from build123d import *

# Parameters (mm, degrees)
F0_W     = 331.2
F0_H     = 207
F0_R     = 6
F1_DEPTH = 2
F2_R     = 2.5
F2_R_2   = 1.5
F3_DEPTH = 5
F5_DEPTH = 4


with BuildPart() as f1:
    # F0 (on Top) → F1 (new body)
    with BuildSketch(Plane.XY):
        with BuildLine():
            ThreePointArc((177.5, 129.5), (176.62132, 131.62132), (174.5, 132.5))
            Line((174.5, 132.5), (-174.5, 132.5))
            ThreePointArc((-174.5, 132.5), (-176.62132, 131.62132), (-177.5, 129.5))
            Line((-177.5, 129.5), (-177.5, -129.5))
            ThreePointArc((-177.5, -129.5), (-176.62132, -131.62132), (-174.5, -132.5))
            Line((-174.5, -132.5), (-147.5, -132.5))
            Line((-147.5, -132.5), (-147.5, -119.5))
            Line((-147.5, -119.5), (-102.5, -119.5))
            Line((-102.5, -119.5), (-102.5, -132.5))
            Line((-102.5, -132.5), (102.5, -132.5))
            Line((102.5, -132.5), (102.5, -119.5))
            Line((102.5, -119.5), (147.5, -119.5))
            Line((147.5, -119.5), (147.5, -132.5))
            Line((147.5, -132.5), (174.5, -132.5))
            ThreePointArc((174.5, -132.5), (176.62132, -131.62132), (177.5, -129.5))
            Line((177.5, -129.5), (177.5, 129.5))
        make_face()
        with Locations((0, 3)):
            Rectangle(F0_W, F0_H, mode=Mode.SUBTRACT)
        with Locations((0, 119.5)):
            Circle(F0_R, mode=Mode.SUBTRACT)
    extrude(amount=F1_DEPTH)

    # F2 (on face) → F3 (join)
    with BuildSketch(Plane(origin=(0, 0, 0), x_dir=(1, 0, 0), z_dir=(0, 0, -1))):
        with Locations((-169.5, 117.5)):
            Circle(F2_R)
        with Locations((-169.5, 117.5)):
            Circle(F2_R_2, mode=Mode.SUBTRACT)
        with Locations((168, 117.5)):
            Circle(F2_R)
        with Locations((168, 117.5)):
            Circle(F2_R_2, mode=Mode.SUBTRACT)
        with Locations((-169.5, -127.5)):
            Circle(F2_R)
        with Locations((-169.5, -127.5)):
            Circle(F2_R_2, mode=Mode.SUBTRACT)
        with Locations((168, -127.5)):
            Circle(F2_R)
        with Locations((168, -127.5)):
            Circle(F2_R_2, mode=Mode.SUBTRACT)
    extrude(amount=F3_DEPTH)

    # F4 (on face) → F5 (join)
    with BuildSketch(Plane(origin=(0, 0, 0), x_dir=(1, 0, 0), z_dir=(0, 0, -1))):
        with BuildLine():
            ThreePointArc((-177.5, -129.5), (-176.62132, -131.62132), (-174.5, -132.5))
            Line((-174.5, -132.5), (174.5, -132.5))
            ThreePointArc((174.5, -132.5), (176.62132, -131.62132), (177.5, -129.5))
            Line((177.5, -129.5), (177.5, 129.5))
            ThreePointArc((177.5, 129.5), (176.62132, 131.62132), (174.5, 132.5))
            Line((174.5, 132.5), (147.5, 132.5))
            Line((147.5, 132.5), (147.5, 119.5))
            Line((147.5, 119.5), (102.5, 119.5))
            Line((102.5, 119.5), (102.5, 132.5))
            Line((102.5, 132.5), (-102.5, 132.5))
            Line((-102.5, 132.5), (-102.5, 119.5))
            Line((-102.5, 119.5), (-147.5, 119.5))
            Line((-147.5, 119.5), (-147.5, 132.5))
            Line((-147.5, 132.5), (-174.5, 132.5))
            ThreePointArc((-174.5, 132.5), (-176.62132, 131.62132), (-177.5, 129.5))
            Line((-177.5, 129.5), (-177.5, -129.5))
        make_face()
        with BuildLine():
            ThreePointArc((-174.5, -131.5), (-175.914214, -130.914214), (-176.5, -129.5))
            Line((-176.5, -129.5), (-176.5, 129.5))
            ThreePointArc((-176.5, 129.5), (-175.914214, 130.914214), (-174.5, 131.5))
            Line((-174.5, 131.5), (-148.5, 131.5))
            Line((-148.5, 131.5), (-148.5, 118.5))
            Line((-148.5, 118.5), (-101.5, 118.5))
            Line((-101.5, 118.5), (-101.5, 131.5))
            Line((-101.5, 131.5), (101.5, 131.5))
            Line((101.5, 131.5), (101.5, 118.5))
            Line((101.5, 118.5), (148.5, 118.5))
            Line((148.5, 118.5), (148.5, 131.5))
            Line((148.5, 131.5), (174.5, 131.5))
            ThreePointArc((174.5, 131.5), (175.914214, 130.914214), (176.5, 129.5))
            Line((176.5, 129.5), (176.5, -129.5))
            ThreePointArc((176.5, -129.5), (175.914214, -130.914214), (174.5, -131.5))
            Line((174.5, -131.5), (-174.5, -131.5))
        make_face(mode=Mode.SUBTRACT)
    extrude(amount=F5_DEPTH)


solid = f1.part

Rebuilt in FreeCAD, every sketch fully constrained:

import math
import FreeCAD as App
import Part
import Sketcher
from FreeCAD import Vector

doc = App.newDocument("Part")
body = doc.addObject("PartDesign::Body", "Body")

# Sketch on XY plane
sketch1 = body.newObject("Sketcher::SketchObject", "Sketch")
sketch1.AttachmentSupport = (doc.getObject("XY_Plane"), [""])
sketch1.MapMode = "FlatFace"
sketch1.addGeometry([
    Part.ArcOfCircle(Part.Circle(Vector(174.499999, 129.499999, 0), Vector(0, 0, 1), 3.000001), math.radians(0.000022), math.radians(89.999978)),  # 0
    Part.LineSegment(Vector(174.5, 132.5, 0), Vector(-174.5, 132.5, 0)),  # 1
    Part.ArcOfCircle(Part.Circle(Vector(-174.499999, 129.499999, 0), Vector(0, 0, 1), 3.000001), math.radians(90.000022), math.radians(179.999978)),  # 2
    Part.LineSegment(Vector(-177.5, 129.5, 0), Vector(-177.5, -129.5, 0)),  # 3
    Part.ArcOfCircle(Part.Circle(Vector(-174.499999, -129.499999, 0), Vector(0, 0, 1), 3.000001), math.radians(-179.999978), math.radians(-90.000022)),  # 4
    Part.LineSegment(Vector(-174.5, -132.5, 0), Vector(-147.5, -132.5, 0)),  # 5
    Part.LineSegment(Vector(-147.5, -132.5, 0), Vector(-147.5, -119.5, 0)),  # 6
    Part.LineSegment(Vector(-147.5, -119.5, 0), Vector(-102.5, -119.5, 0)),  # 7
    Part.LineSegment(Vector(-102.5, -119.5, 0), Vector(-102.5, -132.5, 0)),  # 8
    Part.LineSegment(Vector(-102.5, -132.5, 0), Vector(102.5, -132.5, 0)),  # 9
    Part.LineSegment(Vector(102.5, -132.5, 0), Vector(102.5, -119.5, 0)),  # 10
    Part.LineSegment(Vector(102.5, -119.5, 0), Vector(147.5, -119.5, 0)),  # 11
    Part.LineSegment(Vector(147.5, -119.5, 0), Vector(147.5, -132.5, 0)),  # 12
    Part.LineSegment(Vector(147.5, -132.5, 0), Vector(174.5, -132.5, 0)),  # 13
    Part.ArcOfCircle(Part.Circle(Vector(174.499999, -129.499999, 0), Vector(0, 0, 1), 3.000001), math.radians(-89.999978), math.radians(-0.000022)),  # 14
    Part.LineSegment(Vector(177.5, -129.5, 0), Vector(177.5, 129.5, 0)),  # 15
    Part.LineSegment(Vector(165.6, -100.5, 0), Vector(-165.6, -100.5, 0)),  # 16
    Part.LineSegment(Vector(-165.6, -100.5, 0), Vector(-165.6, 106.5, 0)),  # 17
    Part.LineSegment(Vector(-165.6, 106.5, 0), Vector(165.6, 106.5, 0)),  # 18
    Part.LineSegment(Vector(165.6, 106.5, 0), Vector(165.6, -100.5, 0)),  # 19
    Part.Circle(Vector(0, 119.5, 0), Vector(0, 0, 1), 6),  # 20
], False)
sketch1.addConstraint([
    Sketcher.Constraint("Tangent", 0, 2, 1, 1),
    Sketcher.Constraint("Tangent", 1, 2, 2, 1),
    Sketcher.Constraint("Tangent", 2, 2, 3, 1),
    Sketcher.Constraint("Tangent", 3, 2, 4, 1),
    Sketcher.Constraint("Tangent", 4, 2, 5, 1),
    Sketcher.Constraint("Coincident", 5, 2, 6, 1),
    Sketcher.Constraint("Coincident", 6, 2, 7, 1),
    Sketcher.Constraint("Coincident", 7, 2, 8, 1),
    Sketcher.Constraint("Coincident", 8, 2, 9, 1),
    Sketcher.Constraint("Coincident", 9, 2, 10, 1),
    Sketcher.Constraint("Coincident", 10, 2, 11, 1),
    Sketcher.Constraint("Coincident", 11, 2, 12, 1),
    Sketcher.Constraint("Coincident", 12, 2, 13, 1),
    Sketcher.Constraint("Tangent", 13, 2, 14, 1),
    Sketcher.Constraint("Tangent", 14, 2, 15, 1),
    Sketcher.Constraint("Tangent", 15, 2, 0, 1),
    Sketcher.Constraint("Coincident", 16, 2, 17, 1),
    Sketcher.Constraint("Coincident", 17, 2, 18, 1),
    Sketcher.Constraint("Coincident", 18, 2, 19, 1),
    Sketcher.Constraint("Coincident", 19, 2, 16, 1),
    Sketcher.Constraint("Horizontal", 1),
    Sketcher.Constraint("Vertical", 3),
    Sketcher.Constraint("Horizontal", 5),
    Sketcher.Constraint("Vertical", 6),
    Sketcher.Constraint("Horizontal", 7),
    Sketcher.Constraint("Vertical", 8),
    Sketcher.Constraint("Horizontal", 9),
    Sketcher.Constraint("Vertical", 10),
    Sketcher.Constraint("Horizontal", 11),
    Sketcher.Constraint("Vertical", 12),
    Sketcher.Constraint("Horizontal", 13),
    Sketcher.Constraint("Vertical", 15),
    Sketcher.Constraint("Horizontal", 16),
    Sketcher.Constraint("Vertical", 17),
    Sketcher.Constraint("Horizontal", 18),
    Sketcher.Constraint("Vertical", 19),
    Sketcher.Constraint("Equal", 0, 2),
    Sketcher.Constraint("Equal", 2, 4),
    Sketcher.Constraint("Equal", 4, 14),
    Sketcher.Constraint("Symmetric", 0, 3, 4, 3, -1, 1),
    Sketcher.Constraint("Symmetric", 7, 2, 10, 2, -2),
    Sketcher.Constraint("Symmetric", 5, 2, 12, 2, -2),
    Sketcher.Constraint("PointOnObject", 20, 3, -2),
    Sketcher.Constraint("Horizontal", 5, 2, 8, 2),
    Sketcher.Constraint("Diameter", 20, 12.0),
    Sketcher.Constraint("Radius", 0, 3.000001),
    Sketcher.Constraint("DistanceX", 1, 2, 1, 1, 349.0),
    Sketcher.Constraint("DistanceX", 5, 1, 5, 2, 27.0),
    Sketcher.Constraint("DistanceX", 7, 1, 7, 2, 45.0),
    Sketcher.Constraint("DistanceY", 3, 2, 3, 1, 259.0),
    Sketcher.Constraint("DistanceY", 6, 1, 6, 2, 13.0),
    Sketcher.Constraint("DistanceY", 17, 1, 17, 2, 207.0),
    Sketcher.Constraint("DistanceX", 16, 2, 16, 1, 331.2),
    Sketcher.Constraint("DistanceY", 20, 3, 0, 3, 9.999999),
    Sketcher.Constraint("DistanceY", 6, 2, 16, 2, 19.0),
    Sketcher.Constraint("DistanceX", 16, 2, -1, 1, 165.6),
])
pad1 = body.newObject("PartDesign::Pad", "Pad")
pad1.Profile = sketch1
pad1.Length = 2

# Sketch on XY plane
sketch2 = body.newObject("Sketcher::SketchObject", "Sketch001")
sketch2.AttachmentSupport = (doc.getObject("XY_Plane"), [""])
sketch2.MapMode = "FlatFace"
sketch2.addGeometry([
    Part.Circle(Vector(-169.5, -117.5, 0), Vector(0, 0, 1), 2.5),  # 0
    Part.Circle(Vector(-169.5, -117.5, 0), Vector(0, 0, 1), 1.5),  # 1
    Part.Circle(Vector(168, -117.5, 0), Vector(0, 0, 1), 2.5),  # 2
    Part.Circle(Vector(168, -117.5, 0), Vector(0, 0, 1), 1.5),  # 3
    Part.Circle(Vector(-169.5, 127.5, 0), Vector(0, 0, 1), 2.5),  # 4
    Part.Circle(Vector(-169.5, 127.5, 0), Vector(0, 0, 1), 1.5),  # 5
    Part.Circle(Vector(168, 127.5, 0), Vector(0, 0, 1), 2.5),  # 6
    Part.Circle(Vector(168, 127.5, 0), Vector(0, 0, 1), 1.5),  # 7
], False)
sketch2.addConstraint([
    Sketcher.Constraint("Coincident", 1, 3, 0, 3),
    Sketcher.Constraint("Coincident", 3, 3, 2, 3),
    Sketcher.Constraint("Coincident", 5, 3, 4, 3),
    Sketcher.Constraint("Coincident", 7, 3, 6, 3),
    Sketcher.Constraint("Equal", 0, 2),
    Sketcher.Constraint("Equal", 1, 3),
    Sketcher.Constraint("Equal", 2, 4),
    Sketcher.Constraint("Equal", 3, 5),
    Sketcher.Constraint("Equal", 4, 6),
    Sketcher.Constraint("Equal", 5, 7),
    Sketcher.Constraint("Horizontal", 1, 3, 2, 3),
    Sketcher.Constraint("Horizontal", 5, 3, 6, 3),
    Sketcher.Constraint("Vertical", 1, 3, 4, 3),
    Sketcher.Constraint("Vertical", 3, 3, 6, 3),
    Sketcher.Constraint("Diameter", 0, 5.0),
    Sketcher.Constraint("Diameter", 1, 3.0),
    Sketcher.Constraint("DistanceX", -1, 1, 2, 3, 168.0),
    Sketcher.Constraint("DistanceY", 0, 3, 4, 3, 245.0),
    Sketcher.Constraint("DistanceX", 0, 3, -1, 1, 169.5),
    Sketcher.Constraint("DistanceY", 0, 3, -1, 1, 117.5),
])
pad2 = body.newObject("PartDesign::Pad", "Pad001")
pad2.Profile = sketch2
pad2.Length = 5
pad2.Reversed = True

# Sketch on XY plane
sketch3 = body.newObject("Sketcher::SketchObject", "Sketch002")
sketch3.AttachmentSupport = (doc.getObject("XY_Plane"), [""])
sketch3.MapMode = "FlatFace"
sketch3.addGeometry([
    Part.ArcOfCircle(Part.Circle(Vector(-174.499999, 129.499999, 0), Vector(0, 0, 1), 3.000001), math.radians(90.000022), math.radians(179.999978)),  # 0
    Part.LineSegment(Vector(-174.5, 132.5, 0), Vector(174.5, 132.5, 0)),  # 1
    Part.ArcOfCircle(Part.Circle(Vector(174.499999, 129.499999, 0), Vector(0, 0, 1), 3.000001), math.radians(0.000022), math.radians(89.999978)),  # 2
    Part.LineSegment(Vector(177.5, 129.5, 0), Vector(177.5, -129.5, 0)),  # 3
    Part.ArcOfCircle(Part.Circle(Vector(174.499999, -129.499999, 0), Vector(0, 0, 1), 3.000001), math.radians(-89.999978), math.radians(-0.000022)),  # 4
    Part.LineSegment(Vector(174.5, -132.5, 0), Vector(147.5, -132.5, 0)),  # 5
    Part.LineSegment(Vector(147.5, -132.5, 0), Vector(147.5, -119.5, 0)),  # 6
    Part.LineSegment(Vector(147.5, -119.5, 0), Vector(102.5, -119.5, 0)),  # 7
    Part.LineSegment(Vector(102.5, -119.5, 0), Vector(102.5, -132.5, 0)),  # 8
    Part.LineSegment(Vector(102.5, -132.5, 0), Vector(-102.5, -132.5, 0)),  # 9
    Part.LineSegment(Vector(-102.5, -132.5, 0), Vector(-102.5, -119.5, 0)),  # 10
    Part.LineSegment(Vector(-102.5, -119.5, 0), Vector(-147.5, -119.5, 0)),  # 11
    Part.LineSegment(Vector(-147.5, -119.5, 0), Vector(-147.5, -132.5, 0)),  # 12
    Part.LineSegment(Vector(-147.5, -132.5, 0), Vector(-174.5, -132.5, 0)),  # 13
    Part.ArcOfCircle(Part.Circle(Vector(-174.499999, -129.499999, 0), Vector(0, 0, 1), 3.000001), math.radians(-179.999978), math.radians(-90.000022)),  # 14
    Part.LineSegment(Vector(-177.5, -129.5, 0), Vector(-177.5, 129.5, 0)),  # 15
    Part.LineSegment(Vector(174.5, 131.5, 0), Vector(-174.5, 131.5, 0)),  # 16
    Part.ArcOfCircle(Part.Circle(Vector(-174.500001, 129.500001, 0), Vector(0, 0, 1), 1.999999), math.radians(89.999957), math.radians(180.000043)),  # 17
    Part.LineSegment(Vector(-176.5, 129.5, 0), Vector(-176.5, -129.5, 0)),  # 18
    Part.ArcOfCircle(Part.Circle(Vector(-174.500001, -129.500001, 0), Vector(0, 0, 1), 1.999999), math.radians(179.999957), math.radians(270.000043)),  # 19
    Part.LineSegment(Vector(-174.5, -131.5, 0), Vector(-148.5, -131.5, 0)),  # 20
    Part.LineSegment(Vector(-148.5, -131.5, 0), Vector(-148.5, -118.5, 0)),  # 21
    Part.LineSegment(Vector(-148.5, -118.5, 0), Vector(-101.5, -118.5, 0)),  # 22
    Part.LineSegment(Vector(-101.5, -118.5, 0), Vector(-101.5, -131.5, 0)),  # 23
    Part.LineSegment(Vector(-101.5, -131.5, 0), Vector(101.5, -131.5, 0)),  # 24
    Part.LineSegment(Vector(101.5, -131.5, 0), Vector(101.5, -118.5, 0)),  # 25
    Part.LineSegment(Vector(101.5, -118.5, 0), Vector(148.5, -118.5, 0)),  # 26
    Part.LineSegment(Vector(148.5, -118.5, 0), Vector(148.5, -131.5, 0)),  # 27
    Part.LineSegment(Vector(148.5, -131.5, 0), Vector(174.5, -131.5, 0)),  # 28
    Part.ArcOfCircle(Part.Circle(Vector(174.500001, -129.500001, 0), Vector(0, 0, 1), 1.999999), math.radians(-90.000043), math.radians(0.000043)),  # 29
    Part.LineSegment(Vector(176.5, -129.5, 0), Vector(176.5, 129.5, 0)),  # 30
    Part.ArcOfCircle(Part.Circle(Vector(174.500001, 129.500001, 0), Vector(0, 0, 1), 1.999999), math.radians(-0.000043), math.radians(90.000043)),  # 31
], False)
sketch3.addConstraint([
    Sketcher.Constraint("Tangent", 0, 1, 1, 1),
    Sketcher.Constraint("Tangent", 1, 2, 2, 2),
    Sketcher.Constraint("Tangent", 2, 1, 3, 1),
    Sketcher.Constraint("Tangent", 3, 2, 4, 2),
    Sketcher.Constraint("Tangent", 4, 1, 5, 1),
    Sketcher.Constraint("Coincident", 5, 2, 6, 1),
    Sketcher.Constraint("Coincident", 6, 2, 7, 1),
    Sketcher.Constraint("Coincident", 7, 2, 8, 1),
    Sketcher.Constraint("Coincident", 8, 2, 9, 1),
    Sketcher.Constraint("Coincident", 9, 2, 10, 1),
    Sketcher.Constraint("Coincident", 10, 2, 11, 1),
    Sketcher.Constraint("Coincident", 11, 2, 12, 1),
    Sketcher.Constraint("Coincident", 12, 2, 13, 1),
    Sketcher.Constraint("Tangent", 13, 2, 14, 2),
    Sketcher.Constraint("Tangent", 14, 1, 15, 1),
    Sketcher.Constraint("Tangent", 15, 2, 0, 2),
    Sketcher.Constraint("Tangent", 16, 2, 17, 1),
    Sketcher.Constraint("Tangent", 17, 2, 18, 1),
    Sketcher.Constraint("Tangent", 18, 2, 19, 1),
    Sketcher.Constraint("Tangent", 19, 2, 20, 1),
    Sketcher.Constraint("Coincident", 20, 2, 21, 1),
    Sketcher.Constraint("Coincident", 21, 2, 22, 1),
    Sketcher.Constraint("Coincident", 22, 2, 23, 1),
    Sketcher.Constraint("Coincident", 23, 2, 24, 1),
    Sketcher.Constraint("Coincident", 24, 2, 25, 1),
    Sketcher.Constraint("Coincident", 25, 2, 26, 1),
    Sketcher.Constraint("Coincident", 26, 2, 27, 1),
    Sketcher.Constraint("Coincident", 27, 2, 28, 1),
    Sketcher.Constraint("Tangent", 28, 2, 29, 1),
    Sketcher.Constraint("Tangent", 29, 2, 30, 1),
    Sketcher.Constraint("Tangent", 30, 2, 31, 1),
    Sketcher.Constraint("Tangent", 31, 2, 16, 1),
    Sketcher.Constraint("Horizontal", 1),
    Sketcher.Constraint("Vertical", 3),
    Sketcher.Constraint("Horizontal", 5),
    Sketcher.Constraint("Vertical", 6),
    Sketcher.Constraint("Horizontal", 7),
    Sketcher.Constraint("Vertical", 8),
    Sketcher.Constraint("Horizontal", 9),
    Sketcher.Constraint("Vertical", 10),
    Sketcher.Constraint("Horizontal", 11),
    Sketcher.Constraint("Vertical", 12),
    Sketcher.Constraint("Horizontal", 13),
    Sketcher.Constraint("Vertical", 15),
    Sketcher.Constraint("Horizontal", 16),
    Sketcher.Constraint("Vertical", 18),
    Sketcher.Constraint("Horizontal", 20),
    Sketcher.Constraint("Vertical", 21),
    Sketcher.Constraint("Horizontal", 22),
    Sketcher.Constraint("Vertical", 23),
    Sketcher.Constraint("Horizontal", 24),
    Sketcher.Constraint("Vertical", 25),
    Sketcher.Constraint("Horizontal", 26),
    Sketcher.Constraint("Vertical", 27),
    Sketcher.Constraint("Horizontal", 28),
    Sketcher.Constraint("Vertical", 30),
    Sketcher.Constraint("Coincident", 17, 3, 0, 3),
    Sketcher.Constraint("Coincident", 19, 3, 14, 3),
    Sketcher.Constraint("Coincident", 29, 3, 4, 3),
    Sketcher.Constraint("Coincident", 31, 3, 2, 3),
    Sketcher.Constraint("Equal", 0, 2),
    Sketcher.Constraint("Equal", 2, 4),
    Sketcher.Constraint("Equal", 4, 14),
    Sketcher.Constraint("Symmetric", 0, 3, 4, 3, -1, 1),
    Sketcher.Constraint("Symmetric", 7, 2, 10, 2, -2),
    Sketcher.Constraint("Symmetric", 5, 2, 12, 2, -2),
    Sketcher.Constraint("Symmetric", 22, 2, 25, 2, -2),
    Sketcher.Constraint("Horizontal", 5, 2, 8, 2),
    Sketcher.Constraint("Horizontal", 20, 2, 23, 2),
    Sketcher.Constraint("Equal", 22, 26),
    Sketcher.Constraint("Equal", 12, 21),
    Sketcher.Constraint("Radius", 0, 3.000001),
    Sketcher.Constraint("Radius", 17, 1.999999),
    Sketcher.Constraint("DistanceX", 1, 1, 1, 2, 349.0),
    Sketcher.Constraint("DistanceX", 5, 2, 5, 1, 27.0),
    Sketcher.Constraint("DistanceX", 7, 2, 7, 1, 45.0),
    Sketcher.Constraint("DistanceX", 20, 1, 20, 2, 26.0),
    Sketcher.Constraint("DistanceX", 22, 1, 22, 2, 47.0),
    Sketcher.Constraint("DistanceY", 3, 2, 3, 1, 259.0),
    Sketcher.Constraint("DistanceY", 6, 1, 6, 2, 13.0),
])
pad3 = body.newObject("PartDesign::Pad", "Pad002")
pad3.Profile = sketch3
pad3.Length = 4
pad3.Reversed = True

doc.recompute()
